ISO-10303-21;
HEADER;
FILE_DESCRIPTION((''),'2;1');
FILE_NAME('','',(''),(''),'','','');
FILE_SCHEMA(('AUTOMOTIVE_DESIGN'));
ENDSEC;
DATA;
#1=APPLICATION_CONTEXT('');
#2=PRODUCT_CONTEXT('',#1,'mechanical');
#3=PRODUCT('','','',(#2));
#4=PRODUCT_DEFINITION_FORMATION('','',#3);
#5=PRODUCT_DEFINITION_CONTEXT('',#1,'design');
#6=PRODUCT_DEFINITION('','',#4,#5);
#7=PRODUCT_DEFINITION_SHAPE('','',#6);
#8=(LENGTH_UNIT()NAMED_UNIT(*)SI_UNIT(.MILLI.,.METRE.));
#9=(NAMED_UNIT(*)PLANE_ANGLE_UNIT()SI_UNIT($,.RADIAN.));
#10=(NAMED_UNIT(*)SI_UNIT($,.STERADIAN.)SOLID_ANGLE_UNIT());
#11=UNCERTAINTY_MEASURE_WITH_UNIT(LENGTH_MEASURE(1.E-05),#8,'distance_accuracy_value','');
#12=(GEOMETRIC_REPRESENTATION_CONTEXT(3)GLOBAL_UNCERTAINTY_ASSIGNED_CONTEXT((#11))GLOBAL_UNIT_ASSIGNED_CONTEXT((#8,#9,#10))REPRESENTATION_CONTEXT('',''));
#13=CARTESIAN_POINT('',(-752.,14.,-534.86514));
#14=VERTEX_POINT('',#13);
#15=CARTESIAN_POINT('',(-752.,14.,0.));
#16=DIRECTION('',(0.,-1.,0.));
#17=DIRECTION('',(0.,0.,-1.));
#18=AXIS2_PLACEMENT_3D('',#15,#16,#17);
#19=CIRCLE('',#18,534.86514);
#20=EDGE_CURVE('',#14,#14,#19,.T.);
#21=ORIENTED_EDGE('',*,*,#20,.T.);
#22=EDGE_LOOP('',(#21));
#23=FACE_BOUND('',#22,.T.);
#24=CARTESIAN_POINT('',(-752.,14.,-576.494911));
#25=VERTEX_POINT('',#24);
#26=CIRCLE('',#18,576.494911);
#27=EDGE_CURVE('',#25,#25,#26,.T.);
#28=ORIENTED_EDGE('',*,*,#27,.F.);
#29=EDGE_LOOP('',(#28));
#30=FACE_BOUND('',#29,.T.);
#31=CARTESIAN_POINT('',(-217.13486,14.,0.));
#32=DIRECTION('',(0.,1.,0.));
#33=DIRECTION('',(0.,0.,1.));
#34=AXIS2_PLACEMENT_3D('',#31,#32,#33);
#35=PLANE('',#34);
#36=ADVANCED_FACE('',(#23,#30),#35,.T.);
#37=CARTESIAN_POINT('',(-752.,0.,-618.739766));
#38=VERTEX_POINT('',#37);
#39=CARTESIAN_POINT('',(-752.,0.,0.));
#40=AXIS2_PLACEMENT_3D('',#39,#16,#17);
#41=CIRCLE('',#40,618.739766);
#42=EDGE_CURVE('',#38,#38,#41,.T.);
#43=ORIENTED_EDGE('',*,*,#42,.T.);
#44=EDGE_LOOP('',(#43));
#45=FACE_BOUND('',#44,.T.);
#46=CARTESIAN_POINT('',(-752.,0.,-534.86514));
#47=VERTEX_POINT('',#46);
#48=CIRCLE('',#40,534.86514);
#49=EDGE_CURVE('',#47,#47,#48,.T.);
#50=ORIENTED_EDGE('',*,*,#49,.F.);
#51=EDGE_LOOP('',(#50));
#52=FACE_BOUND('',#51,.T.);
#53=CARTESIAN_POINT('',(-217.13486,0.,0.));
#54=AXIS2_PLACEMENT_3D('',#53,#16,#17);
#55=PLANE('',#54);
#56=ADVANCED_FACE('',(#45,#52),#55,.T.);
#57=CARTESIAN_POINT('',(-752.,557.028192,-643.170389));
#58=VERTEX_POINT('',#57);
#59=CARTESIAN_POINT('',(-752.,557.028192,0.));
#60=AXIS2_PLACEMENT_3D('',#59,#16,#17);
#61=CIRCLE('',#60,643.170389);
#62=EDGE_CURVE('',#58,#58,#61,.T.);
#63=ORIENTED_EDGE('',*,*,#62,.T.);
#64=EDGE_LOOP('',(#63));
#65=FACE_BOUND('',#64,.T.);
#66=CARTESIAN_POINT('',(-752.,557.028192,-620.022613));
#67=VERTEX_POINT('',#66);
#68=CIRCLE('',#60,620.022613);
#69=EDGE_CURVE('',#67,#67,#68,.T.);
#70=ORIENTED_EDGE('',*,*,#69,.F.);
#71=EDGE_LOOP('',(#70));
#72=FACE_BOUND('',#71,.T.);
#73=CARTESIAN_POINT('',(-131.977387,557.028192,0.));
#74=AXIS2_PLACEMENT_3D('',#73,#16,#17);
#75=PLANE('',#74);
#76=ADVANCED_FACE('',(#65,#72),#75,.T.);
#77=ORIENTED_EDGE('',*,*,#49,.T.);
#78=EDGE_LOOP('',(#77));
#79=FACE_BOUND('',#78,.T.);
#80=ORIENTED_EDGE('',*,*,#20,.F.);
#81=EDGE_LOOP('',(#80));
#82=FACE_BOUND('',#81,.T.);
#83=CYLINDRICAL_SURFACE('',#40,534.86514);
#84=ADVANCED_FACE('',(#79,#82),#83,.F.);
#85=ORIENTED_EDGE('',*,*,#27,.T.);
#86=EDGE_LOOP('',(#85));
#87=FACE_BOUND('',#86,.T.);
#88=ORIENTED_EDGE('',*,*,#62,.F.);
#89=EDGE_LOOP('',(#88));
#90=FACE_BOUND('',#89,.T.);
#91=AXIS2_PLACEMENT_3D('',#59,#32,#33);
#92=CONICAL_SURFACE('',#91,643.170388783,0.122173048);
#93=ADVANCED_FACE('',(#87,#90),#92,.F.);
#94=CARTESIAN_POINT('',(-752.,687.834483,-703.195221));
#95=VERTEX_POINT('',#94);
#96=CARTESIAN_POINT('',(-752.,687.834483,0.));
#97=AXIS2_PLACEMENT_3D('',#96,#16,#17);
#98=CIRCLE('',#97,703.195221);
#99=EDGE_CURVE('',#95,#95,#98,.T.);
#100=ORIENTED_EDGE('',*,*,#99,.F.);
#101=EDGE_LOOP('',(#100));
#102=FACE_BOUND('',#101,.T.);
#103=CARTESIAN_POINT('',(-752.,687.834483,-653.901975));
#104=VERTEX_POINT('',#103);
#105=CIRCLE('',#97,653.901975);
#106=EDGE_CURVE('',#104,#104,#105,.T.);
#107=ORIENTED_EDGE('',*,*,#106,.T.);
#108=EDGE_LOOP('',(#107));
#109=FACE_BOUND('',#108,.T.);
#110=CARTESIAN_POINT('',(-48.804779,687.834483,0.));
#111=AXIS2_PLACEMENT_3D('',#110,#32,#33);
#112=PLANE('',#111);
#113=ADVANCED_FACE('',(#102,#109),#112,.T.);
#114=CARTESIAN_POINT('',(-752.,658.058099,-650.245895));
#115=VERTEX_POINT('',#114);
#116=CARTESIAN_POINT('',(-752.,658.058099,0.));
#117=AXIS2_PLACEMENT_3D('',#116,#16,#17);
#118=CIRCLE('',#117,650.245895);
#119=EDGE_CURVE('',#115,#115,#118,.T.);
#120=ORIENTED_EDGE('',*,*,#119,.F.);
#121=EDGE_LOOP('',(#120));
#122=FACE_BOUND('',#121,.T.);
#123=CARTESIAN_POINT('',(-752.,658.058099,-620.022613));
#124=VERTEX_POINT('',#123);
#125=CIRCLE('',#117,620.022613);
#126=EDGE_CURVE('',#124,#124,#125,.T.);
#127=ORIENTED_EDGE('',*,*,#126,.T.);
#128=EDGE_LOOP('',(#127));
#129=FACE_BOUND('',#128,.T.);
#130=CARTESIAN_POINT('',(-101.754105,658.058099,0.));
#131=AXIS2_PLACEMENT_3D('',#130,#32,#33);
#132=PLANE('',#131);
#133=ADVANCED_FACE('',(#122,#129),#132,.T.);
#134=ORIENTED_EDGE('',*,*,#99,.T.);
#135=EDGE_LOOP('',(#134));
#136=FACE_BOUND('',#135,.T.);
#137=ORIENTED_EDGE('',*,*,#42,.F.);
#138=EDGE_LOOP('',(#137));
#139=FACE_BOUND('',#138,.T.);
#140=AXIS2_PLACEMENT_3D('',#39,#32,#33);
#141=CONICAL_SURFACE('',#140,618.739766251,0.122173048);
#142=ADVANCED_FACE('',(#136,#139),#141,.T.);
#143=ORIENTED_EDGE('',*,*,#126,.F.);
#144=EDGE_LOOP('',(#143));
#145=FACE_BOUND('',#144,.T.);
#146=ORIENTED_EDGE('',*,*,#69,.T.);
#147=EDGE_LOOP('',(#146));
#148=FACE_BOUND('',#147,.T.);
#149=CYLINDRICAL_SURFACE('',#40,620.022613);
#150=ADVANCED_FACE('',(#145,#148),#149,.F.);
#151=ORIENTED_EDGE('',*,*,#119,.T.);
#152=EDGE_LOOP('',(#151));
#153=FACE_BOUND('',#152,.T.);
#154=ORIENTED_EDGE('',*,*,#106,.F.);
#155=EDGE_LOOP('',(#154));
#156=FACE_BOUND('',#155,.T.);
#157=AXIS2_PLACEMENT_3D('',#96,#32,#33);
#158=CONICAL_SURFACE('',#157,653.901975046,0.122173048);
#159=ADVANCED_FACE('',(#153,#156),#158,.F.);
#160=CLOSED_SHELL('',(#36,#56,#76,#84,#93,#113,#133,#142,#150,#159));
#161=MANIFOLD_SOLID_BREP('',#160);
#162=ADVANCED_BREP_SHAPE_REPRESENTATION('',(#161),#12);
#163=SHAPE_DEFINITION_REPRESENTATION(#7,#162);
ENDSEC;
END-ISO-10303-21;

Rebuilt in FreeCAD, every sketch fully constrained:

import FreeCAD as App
import Part
import Sketcher
Q = App.Units.Quantity


def add_polygon(sketch, points):
    """Adds a closed chain of lines whose ends are joined by coincident constraints."""
    first, n = sketch.GeometryCount, len(points)
    for a, b in zip(points, points[1:] + points[:1]):
        sketch.addGeometry(Part.LineSegment(App.Vector(*a, 0), App.Vector(*b, 0)), False)
    for i in range(n):
        sketch.addConstraint(Sketcher.Constraint("Coincident", first + i, 2, first + (i + 1) % n, 1))

doc = App.newDocument("Part")
body = doc.addObject("PartDesign::Body", "Body")

# Sketch on XY plane
sketch1 = body.newObject("Sketcher::SketchObject", "Sketch")
sketch1.AttachmentSupport = (doc.getObject("XY_Plane"), [""])
sketch1.MapMode = "FlatFace"
add_polygon(sketch1, [(-217, 0), (-133, 0), (-49, 688), (-98, 688), (-102, 658), (-132, 658), (-132, 557), (-109, 557), (-176, 14), (-217, 14)])  # lines 0-9
sketch1.addGeometry(Part.LineSegment(App.Vector(-752, 0, 0), App.Vector(-752, 688, 0)), True)  # axis
sketch1.addConstraint([
    Sketcher.Constraint("Horizontal", 0),
    Sketcher.Constraint("Horizontal", 2),
    Sketcher.Constraint("Horizontal", 4),
    Sketcher.Constraint("Vertical", 5),
    Sketcher.Constraint("Horizontal", 6),
    Sketcher.Constraint("Horizontal", 8),
    Sketcher.Constraint("Vertical", 9),
    Sketcher.Constraint("Vertical", 10),
    Sketcher.Constraint("PointOnObject", 0, 2, -1),
    Sketcher.Constraint("PointOnObject", 10, 1, -1),
    Sketcher.Constraint("Parallel", 1, 3),
    Sketcher.Constraint("Parallel", 3, 7),
    Sketcher.Constraint("Horizontal", 2, 2, 10, 2),
    Sketcher.Constraint("DistanceY", 9, 2, 9, 1, Q("14 mm")),
    Sketcher.Constraint("Angle", 1, Q("83 deg")),
    Sketcher.Constraint("Distance", 1, Q("693 mm")),
    Sketcher.Constraint("Distance", 3, Q("30 mm")),
    Sketcher.Constraint("DistanceX", 10, 1, -1, 1, Q("752 mm")),
    Sketcher.Constraint("DistanceX", 8, 2, 8, 1, Q("41.629771 mm")),
    Sketcher.Constraint("DistanceX", 7, 2, 5, 2, Q("43.527702 mm")),
    Sketcher.Constraint("Distance", 7, Q("547.106239 mm")),
    Sketcher.Constraint("DistanceX", 0, 1, 0, 2, Q("83.874626 mm")),
    Sketcher.Constraint("DistanceX", 2, 2, 2, 1, Q("49.293246 mm")),
    Sketcher.Constraint("DistanceX", 1, 2, -1, 1, Q("48.804779 mm")),
])
revolution = body.newObject("PartDesign::Revolution", "Revolution")
revolution.Profile = sketch1
revolution.ReferenceAxis = (sketch1, ["Axis0"])
revolution.Angle = 360

doc.recompute()
